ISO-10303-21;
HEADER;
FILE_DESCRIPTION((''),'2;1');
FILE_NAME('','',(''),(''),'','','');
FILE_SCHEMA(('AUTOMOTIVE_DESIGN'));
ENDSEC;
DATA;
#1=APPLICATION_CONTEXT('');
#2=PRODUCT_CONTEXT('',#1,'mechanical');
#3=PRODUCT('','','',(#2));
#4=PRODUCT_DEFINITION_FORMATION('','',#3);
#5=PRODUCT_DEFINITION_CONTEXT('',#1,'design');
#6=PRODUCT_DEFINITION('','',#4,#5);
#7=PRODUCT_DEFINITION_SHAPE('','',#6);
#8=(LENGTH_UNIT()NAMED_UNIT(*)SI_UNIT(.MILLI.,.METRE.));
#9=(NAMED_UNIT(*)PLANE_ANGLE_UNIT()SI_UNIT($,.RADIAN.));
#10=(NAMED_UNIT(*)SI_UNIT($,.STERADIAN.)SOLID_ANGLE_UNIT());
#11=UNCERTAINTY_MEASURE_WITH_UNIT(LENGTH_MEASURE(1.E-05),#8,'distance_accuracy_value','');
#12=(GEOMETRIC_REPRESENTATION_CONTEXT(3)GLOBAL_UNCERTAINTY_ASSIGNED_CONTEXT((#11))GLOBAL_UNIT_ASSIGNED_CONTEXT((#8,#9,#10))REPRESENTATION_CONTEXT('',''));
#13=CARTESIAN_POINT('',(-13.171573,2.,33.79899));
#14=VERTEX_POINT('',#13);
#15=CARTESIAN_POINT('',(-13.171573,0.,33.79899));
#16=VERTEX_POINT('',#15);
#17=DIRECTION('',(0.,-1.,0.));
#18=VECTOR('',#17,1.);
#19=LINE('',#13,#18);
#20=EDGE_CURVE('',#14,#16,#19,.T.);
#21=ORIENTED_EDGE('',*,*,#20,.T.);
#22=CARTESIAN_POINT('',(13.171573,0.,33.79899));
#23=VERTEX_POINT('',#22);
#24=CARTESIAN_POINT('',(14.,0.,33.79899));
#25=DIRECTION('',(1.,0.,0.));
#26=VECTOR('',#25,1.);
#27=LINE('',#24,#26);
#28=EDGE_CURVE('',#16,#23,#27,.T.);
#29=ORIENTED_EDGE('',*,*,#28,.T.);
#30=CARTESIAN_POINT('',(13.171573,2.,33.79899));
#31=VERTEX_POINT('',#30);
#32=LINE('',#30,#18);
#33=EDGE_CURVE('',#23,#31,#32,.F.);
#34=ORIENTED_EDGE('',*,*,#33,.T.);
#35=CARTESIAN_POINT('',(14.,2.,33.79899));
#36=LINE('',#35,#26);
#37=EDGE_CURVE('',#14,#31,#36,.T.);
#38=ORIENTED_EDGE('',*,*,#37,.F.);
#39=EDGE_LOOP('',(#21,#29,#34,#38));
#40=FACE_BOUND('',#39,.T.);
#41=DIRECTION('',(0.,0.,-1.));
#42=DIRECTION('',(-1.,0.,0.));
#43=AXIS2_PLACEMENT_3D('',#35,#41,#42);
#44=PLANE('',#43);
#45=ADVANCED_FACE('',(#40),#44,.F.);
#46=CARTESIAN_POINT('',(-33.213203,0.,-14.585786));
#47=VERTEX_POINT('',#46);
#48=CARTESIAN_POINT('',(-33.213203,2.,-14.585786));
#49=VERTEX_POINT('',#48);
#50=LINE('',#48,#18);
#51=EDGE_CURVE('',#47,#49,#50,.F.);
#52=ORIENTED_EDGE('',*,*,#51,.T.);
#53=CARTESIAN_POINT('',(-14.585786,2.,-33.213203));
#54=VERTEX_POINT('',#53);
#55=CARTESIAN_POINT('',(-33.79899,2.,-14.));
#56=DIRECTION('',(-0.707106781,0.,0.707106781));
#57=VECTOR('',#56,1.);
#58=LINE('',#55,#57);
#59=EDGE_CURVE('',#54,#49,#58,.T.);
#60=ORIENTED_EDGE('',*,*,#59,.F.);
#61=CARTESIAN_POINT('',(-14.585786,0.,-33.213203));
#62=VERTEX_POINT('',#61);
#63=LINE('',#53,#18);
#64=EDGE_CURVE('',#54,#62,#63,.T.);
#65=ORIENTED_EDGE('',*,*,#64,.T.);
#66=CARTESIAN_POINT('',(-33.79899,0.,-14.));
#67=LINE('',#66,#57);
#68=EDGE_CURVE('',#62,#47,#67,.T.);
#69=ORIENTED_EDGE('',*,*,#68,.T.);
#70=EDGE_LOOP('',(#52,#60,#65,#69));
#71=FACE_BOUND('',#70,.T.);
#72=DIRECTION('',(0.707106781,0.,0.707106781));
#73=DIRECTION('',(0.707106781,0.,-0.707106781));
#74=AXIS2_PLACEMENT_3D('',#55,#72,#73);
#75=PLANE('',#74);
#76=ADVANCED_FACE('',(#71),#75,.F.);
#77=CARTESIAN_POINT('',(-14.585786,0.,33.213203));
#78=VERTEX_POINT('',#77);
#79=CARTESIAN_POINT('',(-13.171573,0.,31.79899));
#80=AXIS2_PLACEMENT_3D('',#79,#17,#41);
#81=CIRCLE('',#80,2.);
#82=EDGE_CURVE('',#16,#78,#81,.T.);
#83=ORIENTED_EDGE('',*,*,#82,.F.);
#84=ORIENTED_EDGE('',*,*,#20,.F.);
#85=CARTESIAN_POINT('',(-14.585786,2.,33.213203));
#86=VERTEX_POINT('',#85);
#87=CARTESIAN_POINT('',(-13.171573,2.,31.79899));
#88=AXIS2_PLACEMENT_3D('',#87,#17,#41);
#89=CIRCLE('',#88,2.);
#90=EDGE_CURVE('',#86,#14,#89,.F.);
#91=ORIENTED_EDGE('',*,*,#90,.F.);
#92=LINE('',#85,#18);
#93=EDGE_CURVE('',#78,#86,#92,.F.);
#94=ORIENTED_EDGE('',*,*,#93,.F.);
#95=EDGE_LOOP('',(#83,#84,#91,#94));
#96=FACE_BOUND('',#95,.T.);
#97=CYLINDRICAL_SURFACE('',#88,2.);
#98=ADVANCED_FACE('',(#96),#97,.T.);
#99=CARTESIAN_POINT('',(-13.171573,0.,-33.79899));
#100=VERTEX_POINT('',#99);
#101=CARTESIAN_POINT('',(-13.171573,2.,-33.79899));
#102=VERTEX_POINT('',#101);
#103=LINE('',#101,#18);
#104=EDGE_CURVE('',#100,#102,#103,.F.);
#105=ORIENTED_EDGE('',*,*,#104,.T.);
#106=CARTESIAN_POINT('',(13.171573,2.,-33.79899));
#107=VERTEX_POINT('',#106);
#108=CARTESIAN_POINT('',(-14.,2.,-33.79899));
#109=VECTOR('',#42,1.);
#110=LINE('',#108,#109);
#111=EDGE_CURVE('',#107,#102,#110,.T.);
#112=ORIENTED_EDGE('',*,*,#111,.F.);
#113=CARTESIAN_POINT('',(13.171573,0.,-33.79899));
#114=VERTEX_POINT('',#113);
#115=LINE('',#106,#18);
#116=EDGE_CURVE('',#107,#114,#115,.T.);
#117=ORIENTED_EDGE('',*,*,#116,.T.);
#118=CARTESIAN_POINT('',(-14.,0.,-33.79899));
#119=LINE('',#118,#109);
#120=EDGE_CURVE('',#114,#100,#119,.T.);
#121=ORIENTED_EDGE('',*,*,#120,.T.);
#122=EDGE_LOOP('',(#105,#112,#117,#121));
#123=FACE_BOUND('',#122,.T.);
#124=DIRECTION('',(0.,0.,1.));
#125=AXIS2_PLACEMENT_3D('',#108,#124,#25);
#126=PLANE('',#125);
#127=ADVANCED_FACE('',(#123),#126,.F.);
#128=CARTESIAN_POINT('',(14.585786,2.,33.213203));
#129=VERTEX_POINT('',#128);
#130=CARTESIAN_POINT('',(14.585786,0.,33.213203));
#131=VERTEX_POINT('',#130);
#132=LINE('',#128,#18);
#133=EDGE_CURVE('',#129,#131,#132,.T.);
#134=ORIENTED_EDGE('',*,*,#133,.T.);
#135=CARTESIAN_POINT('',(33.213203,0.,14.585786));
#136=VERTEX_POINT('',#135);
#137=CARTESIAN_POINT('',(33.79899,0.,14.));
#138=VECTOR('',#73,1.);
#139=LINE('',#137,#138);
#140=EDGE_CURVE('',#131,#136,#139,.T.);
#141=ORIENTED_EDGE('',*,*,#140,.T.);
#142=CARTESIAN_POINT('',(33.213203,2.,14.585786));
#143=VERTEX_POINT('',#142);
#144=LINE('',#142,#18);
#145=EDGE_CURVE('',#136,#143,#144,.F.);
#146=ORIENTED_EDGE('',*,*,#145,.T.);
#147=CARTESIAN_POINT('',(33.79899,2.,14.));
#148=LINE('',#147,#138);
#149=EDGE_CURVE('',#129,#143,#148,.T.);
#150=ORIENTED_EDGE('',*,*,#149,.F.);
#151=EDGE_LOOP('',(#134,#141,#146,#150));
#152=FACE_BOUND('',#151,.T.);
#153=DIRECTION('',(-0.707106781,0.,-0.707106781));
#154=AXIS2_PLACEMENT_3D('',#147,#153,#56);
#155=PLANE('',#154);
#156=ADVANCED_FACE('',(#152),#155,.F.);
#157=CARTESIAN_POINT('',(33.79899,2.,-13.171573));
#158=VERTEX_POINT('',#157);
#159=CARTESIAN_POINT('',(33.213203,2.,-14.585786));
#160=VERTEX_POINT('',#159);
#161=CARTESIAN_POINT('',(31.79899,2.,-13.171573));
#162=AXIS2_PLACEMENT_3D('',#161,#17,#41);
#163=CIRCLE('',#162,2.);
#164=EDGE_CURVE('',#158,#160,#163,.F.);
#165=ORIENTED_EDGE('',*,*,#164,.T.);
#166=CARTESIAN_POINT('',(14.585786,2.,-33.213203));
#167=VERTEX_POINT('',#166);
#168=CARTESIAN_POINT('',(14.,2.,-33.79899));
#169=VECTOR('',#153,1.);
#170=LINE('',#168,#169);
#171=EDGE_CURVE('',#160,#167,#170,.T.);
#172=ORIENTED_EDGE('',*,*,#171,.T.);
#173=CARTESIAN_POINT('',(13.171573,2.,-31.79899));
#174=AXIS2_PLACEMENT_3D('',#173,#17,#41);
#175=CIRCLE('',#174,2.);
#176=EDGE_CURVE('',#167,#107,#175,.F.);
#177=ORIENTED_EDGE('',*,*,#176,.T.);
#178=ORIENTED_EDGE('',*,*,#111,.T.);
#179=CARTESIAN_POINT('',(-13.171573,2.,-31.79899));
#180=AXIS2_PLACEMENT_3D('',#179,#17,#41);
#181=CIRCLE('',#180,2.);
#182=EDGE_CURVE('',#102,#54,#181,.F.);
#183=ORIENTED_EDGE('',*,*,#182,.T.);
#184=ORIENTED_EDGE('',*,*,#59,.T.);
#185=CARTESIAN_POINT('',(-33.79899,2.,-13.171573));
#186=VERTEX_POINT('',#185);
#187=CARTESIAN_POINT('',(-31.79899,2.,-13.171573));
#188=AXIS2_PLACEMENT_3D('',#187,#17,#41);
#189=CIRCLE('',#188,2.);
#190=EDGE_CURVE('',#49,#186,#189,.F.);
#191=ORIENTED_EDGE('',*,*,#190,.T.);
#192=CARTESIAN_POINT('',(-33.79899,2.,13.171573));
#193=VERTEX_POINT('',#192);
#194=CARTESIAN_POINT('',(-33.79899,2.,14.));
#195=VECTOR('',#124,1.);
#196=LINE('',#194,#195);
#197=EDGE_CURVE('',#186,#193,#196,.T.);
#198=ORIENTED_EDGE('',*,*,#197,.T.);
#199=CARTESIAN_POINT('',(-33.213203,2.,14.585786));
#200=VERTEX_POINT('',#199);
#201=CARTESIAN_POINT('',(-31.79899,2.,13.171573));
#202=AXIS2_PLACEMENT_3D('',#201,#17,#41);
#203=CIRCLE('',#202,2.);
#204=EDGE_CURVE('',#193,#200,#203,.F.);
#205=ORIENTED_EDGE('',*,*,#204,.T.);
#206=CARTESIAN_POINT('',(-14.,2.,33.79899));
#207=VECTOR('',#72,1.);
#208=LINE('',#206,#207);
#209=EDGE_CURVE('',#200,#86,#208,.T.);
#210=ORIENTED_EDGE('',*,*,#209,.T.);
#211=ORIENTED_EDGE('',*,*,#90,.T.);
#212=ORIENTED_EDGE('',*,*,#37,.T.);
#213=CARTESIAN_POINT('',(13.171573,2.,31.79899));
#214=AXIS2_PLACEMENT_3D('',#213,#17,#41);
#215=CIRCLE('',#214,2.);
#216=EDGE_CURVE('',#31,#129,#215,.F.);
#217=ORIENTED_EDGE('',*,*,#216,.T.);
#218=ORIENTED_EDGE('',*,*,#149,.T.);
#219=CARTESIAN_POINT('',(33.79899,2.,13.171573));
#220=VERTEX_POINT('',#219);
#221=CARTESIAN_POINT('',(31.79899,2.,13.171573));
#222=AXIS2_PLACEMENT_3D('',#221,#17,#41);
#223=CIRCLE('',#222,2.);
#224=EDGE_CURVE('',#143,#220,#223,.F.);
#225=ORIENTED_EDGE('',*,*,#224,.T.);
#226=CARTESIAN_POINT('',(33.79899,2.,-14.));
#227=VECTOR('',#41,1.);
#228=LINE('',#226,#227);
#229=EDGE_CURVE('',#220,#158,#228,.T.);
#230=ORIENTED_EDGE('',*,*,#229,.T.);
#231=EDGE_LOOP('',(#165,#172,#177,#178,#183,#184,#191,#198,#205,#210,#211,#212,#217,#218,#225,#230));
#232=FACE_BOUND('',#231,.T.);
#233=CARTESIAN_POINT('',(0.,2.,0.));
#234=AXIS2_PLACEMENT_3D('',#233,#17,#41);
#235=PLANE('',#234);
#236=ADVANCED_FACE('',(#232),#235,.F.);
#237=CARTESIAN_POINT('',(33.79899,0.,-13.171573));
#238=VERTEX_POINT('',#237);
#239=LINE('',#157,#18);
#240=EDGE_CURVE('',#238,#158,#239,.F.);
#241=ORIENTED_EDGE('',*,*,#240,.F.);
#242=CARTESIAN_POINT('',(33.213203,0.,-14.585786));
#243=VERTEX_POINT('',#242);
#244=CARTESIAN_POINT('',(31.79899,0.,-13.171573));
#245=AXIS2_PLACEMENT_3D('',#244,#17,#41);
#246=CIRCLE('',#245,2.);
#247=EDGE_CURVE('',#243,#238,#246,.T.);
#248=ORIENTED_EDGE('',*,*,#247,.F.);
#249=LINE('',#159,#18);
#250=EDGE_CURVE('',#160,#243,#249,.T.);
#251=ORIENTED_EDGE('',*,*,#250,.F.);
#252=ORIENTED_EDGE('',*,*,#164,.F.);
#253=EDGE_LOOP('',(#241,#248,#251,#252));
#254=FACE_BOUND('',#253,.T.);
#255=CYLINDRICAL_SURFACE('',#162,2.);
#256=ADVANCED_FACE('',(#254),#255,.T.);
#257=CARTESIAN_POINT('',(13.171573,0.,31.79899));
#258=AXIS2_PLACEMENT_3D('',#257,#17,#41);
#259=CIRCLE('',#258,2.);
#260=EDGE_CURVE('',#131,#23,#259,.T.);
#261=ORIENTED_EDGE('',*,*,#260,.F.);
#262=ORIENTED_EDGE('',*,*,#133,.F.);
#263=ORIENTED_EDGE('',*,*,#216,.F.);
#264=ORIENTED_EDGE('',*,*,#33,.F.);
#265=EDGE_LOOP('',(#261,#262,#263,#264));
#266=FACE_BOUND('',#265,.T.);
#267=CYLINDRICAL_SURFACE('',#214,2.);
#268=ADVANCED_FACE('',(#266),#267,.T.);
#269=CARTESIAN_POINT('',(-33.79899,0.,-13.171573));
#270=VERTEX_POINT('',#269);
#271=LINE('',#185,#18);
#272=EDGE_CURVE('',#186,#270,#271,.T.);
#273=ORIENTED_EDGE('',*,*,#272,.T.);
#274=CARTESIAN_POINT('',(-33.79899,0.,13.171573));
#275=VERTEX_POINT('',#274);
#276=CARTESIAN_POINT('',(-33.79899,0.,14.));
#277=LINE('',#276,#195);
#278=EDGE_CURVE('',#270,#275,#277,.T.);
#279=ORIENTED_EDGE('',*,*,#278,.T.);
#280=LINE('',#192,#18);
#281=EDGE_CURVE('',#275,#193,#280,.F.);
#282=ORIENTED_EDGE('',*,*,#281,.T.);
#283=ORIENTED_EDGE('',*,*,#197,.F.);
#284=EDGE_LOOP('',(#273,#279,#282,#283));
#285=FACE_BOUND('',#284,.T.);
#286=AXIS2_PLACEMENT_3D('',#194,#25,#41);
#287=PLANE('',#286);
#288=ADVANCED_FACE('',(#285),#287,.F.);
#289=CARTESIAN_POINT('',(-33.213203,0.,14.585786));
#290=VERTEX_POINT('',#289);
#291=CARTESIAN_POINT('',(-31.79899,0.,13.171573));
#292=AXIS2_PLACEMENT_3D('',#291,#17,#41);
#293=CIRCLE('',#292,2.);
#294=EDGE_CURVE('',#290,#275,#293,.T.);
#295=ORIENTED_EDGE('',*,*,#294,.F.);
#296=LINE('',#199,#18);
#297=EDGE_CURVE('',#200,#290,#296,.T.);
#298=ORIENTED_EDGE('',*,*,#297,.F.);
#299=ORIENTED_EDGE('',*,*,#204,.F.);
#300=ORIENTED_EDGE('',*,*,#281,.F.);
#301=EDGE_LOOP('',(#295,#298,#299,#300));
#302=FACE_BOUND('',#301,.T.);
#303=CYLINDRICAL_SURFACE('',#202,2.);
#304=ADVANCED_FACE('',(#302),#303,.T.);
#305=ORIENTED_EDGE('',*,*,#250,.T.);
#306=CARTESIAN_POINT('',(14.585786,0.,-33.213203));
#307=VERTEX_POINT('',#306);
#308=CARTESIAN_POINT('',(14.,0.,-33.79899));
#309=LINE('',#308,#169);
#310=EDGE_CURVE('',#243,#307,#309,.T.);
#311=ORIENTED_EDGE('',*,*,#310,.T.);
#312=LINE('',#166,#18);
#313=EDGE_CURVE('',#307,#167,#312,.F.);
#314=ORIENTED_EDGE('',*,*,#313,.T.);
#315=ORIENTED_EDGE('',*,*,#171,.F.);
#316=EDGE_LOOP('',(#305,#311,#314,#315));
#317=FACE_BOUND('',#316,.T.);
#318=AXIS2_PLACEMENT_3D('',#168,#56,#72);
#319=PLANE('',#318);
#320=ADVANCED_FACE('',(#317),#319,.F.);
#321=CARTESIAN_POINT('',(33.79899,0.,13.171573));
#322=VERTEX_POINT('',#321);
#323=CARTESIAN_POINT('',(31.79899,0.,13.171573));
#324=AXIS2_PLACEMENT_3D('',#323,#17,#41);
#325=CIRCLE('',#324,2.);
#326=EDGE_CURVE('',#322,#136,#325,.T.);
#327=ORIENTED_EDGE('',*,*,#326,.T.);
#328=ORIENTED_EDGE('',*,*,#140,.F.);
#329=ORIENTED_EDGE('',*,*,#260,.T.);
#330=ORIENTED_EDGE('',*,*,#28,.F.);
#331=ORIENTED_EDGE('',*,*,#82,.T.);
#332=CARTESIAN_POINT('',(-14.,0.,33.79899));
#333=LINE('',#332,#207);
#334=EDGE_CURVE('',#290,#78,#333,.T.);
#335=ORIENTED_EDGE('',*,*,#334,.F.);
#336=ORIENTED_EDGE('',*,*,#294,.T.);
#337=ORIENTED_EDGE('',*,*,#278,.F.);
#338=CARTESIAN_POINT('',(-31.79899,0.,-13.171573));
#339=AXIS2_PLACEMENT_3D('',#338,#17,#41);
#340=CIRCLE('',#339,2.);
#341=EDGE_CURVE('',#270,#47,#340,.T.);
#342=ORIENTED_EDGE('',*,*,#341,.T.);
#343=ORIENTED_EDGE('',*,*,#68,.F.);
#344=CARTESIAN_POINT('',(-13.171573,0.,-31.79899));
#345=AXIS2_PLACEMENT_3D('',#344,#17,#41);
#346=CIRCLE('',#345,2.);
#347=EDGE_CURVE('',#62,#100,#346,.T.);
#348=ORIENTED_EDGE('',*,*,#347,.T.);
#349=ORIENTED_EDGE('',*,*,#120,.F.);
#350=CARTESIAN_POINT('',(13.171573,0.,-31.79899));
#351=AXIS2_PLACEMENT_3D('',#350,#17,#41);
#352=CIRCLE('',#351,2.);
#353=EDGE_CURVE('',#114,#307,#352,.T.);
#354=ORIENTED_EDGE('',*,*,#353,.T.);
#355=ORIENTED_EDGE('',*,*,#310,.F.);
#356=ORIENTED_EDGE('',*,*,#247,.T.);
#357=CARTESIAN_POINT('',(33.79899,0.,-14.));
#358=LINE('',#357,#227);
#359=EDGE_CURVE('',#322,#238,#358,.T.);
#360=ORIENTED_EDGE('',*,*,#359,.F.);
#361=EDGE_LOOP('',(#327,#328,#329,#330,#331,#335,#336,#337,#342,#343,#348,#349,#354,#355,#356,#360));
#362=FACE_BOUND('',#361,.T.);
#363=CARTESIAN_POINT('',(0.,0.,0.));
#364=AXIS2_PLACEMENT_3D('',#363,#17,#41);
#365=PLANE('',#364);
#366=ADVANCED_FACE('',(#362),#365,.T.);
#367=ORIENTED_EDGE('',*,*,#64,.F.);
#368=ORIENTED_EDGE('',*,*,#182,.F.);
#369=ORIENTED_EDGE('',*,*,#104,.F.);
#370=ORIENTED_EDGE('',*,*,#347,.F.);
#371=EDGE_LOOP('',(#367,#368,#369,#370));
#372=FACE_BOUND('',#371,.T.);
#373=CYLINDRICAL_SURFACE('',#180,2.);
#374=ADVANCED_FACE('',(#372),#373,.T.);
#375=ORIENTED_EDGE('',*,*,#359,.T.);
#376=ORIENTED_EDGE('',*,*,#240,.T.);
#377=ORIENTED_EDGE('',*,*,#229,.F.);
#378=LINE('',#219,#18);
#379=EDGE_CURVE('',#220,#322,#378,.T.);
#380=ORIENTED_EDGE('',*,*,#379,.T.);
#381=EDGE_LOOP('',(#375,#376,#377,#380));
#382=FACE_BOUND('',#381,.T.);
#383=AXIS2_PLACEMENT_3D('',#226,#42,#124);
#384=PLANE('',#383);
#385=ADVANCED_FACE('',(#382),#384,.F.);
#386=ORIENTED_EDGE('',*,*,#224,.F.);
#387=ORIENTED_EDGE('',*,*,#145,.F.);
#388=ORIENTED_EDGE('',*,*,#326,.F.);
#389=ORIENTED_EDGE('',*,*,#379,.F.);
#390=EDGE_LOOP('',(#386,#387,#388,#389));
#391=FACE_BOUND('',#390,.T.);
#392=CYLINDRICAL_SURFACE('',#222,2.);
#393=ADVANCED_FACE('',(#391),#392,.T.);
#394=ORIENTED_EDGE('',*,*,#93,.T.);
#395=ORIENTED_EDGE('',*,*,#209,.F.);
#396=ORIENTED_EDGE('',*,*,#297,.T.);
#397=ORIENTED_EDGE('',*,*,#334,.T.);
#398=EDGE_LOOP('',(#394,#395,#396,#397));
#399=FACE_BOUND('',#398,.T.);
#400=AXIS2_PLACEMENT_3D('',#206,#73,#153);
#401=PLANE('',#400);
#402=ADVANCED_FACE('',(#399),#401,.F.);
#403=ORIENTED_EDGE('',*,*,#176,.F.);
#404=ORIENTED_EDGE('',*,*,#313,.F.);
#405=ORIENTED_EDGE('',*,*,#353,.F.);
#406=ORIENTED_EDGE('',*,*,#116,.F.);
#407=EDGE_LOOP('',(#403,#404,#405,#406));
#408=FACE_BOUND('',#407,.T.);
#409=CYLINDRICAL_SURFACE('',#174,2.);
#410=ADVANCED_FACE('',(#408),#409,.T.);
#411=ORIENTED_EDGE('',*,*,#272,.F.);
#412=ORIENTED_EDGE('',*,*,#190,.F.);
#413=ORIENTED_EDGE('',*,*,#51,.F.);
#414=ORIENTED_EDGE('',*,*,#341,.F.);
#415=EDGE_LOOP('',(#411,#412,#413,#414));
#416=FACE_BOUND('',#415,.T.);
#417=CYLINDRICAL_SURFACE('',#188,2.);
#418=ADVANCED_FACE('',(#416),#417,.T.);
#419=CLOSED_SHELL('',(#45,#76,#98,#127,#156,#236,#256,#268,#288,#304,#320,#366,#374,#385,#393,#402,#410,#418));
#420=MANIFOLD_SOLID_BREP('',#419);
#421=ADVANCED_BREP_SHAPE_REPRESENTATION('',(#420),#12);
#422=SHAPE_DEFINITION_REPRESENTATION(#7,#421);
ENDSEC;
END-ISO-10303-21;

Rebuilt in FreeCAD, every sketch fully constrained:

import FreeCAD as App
import Part
import Sketcher

V = App.Vector


def edges_at(feature, points):
    """Names of the edges that pass closest to the given points."""
    edges = feature.Shape.Edges
    near = lambda p: min(range(len(edges)), key=lambda i: edges[i].distToShape(Part.Vertex(*p))[0])
    return sorted({f"Edge{near(p) + 1}" for p in points})


def add_polygon(sketch, points):
    """Adds a closed chain of lines whose ends are joined by coincident constraints."""
    first, n = sketch.GeometryCount, len(points)
    for a, b in zip(points, points[1:] + points[:1]):
        sketch.addGeometry(Part.LineSegment(App.Vector(*a, 0), App.Vector(*b, 0)), False)
    for i in range(n):
        sketch.addConstraint(Sketcher.Constraint("Coincident", first + i, 2, first + (i + 1) % n, 1))

doc = App.newDocument("Part")
body = doc.addObject("PartDesign::Body", "Body")

sketch1 = doc.addObject("Sketcher::SketchObject", "Sketch")
body.addObject(sketch1)
sketch1.AttachmentSupport = (doc.XZ_Plane, [""])
sketch1.MapMode = "FlatFace"
add_polygon(sketch1, [(14, -34), (-14, -34), (-34, -14), (-34, 14), (-14, 34), (14, 34), (34, 14), (34, -14)])
sketch1.addConstraint([
    Sketcher.Constraint("Horizontal", 0),
    Sketcher.Constraint("Vertical", 2),
    Sketcher.Constraint("Horizontal", 4),
    Sketcher.Constraint("Vertical", 6),
    Sketcher.Constraint("Symmetric", 0, 2, 4, 2, -1, 1),
    Sketcher.Constraint("Symmetric", 1, 2, 5, 2, -1, 1),
    Sketcher.Constraint("Perpendicular", 1, 3),
    Sketcher.Constraint("Perpendicular", 5, 7),
    Sketcher.Constraint("Horizontal", 2, 2, 5, 2),
    Sketcher.Constraint("Horizontal", 1, 2, 6, 2),
    Sketcher.Constraint("Vertical", 0, 2, 3, 2),
    Sketcher.Constraint("Equal", 4, 2),
    Sketcher.Constraint("DistanceX", 0, 2, 0, 1, 28.0),
    Sketcher.Constraint("Distance", 1, 28.0),
])
pad1 = doc.addObject("PartDesign::Pad", "Pad")
body.addObject(pad1)
pad1.Profile = sketch1
pad1.Length = 2
pad1.Reversed = True
doc.recompute()

fillet = doc.addObject("PartDesign::Fillet", "Fillet")
body.addObject(fillet)
fillet.Base = (pad1, edges_at(pad1, [
    (-14, 1, -33.799),
    (14, 1, -33.799),
    (33.799, 1, -14),
    (33.799, 1, 14),
    (14, 1, 33.799),
    (-14, 1, 33.799),
    (-33.799, 1, 14),
    (-33.799, 1, -14),
]))
fillet.Radius = 2

doc.recompute()
